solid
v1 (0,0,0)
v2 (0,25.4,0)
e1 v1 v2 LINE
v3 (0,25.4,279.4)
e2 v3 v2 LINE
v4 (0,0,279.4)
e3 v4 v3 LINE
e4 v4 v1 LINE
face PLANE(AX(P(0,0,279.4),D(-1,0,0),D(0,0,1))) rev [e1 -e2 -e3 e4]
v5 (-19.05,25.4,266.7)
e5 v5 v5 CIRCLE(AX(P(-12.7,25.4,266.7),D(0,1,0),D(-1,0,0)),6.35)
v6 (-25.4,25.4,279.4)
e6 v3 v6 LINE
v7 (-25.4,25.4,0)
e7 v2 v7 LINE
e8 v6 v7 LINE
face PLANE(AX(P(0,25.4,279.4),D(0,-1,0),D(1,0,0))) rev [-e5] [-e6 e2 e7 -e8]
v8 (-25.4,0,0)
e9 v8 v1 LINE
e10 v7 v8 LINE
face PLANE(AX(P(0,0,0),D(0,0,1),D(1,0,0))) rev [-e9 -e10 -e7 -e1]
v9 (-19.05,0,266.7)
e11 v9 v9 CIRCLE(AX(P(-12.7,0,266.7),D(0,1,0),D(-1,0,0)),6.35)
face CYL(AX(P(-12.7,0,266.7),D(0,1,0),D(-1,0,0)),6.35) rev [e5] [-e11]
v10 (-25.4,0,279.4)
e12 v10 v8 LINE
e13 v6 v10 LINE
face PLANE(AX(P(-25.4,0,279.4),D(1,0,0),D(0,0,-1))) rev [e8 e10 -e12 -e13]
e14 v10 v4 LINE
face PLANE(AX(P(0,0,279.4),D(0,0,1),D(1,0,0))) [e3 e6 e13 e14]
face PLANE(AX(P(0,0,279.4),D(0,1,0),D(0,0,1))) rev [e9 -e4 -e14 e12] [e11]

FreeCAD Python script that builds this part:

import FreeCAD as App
import Part
import Sketcher
from FreeCAD import Vector
Q = App.Units.Quantity


def add_polygon(sketch, points):
    """Adds a closed chain of lines whose ends are joined by coincident constraints."""
    first, n = sketch.GeometryCount, len(points)
    for a, b in zip(points, points[1:] + points[:1]):
        sketch.addGeometry(Part.LineSegment(App.Vector(*a, 0), App.Vector(*b, 0)), False)
    for i in range(n):
        sketch.addConstraint(Sketcher.Constraint("Coincident", first + i, 2, first + (i + 1) % n, 1))

doc = App.newDocument("Part")
body = doc.addObject("PartDesign::Body", "Body")

sketch1 = body.newObject("Sketcher::SketchObject", "Sketch")
sketch1.AttachmentSupport = (doc.getObject("XY_Plane"), [""])
sketch1.MapMode = "FlatFace"
add_polygon(sketch1, [(-25, 25), (-25, 0), (0, 0), (0, 25)])
sketch1.addConstraint([
    Sketcher.Constraint("Vertical", 0),
    Sketcher.Constraint("Horizontal", 1),
    Sketcher.Constraint("Vertical", 2),
    Sketcher.Constraint("Horizontal", 3),
    Sketcher.Constraint("Coincident", 1, 2, -1, 1),
    Sketcher.Constraint("Equal", 3, 0),
    Sketcher.Constraint("DistanceX", 1, 1, 1, 2, Q("1 in")),
])
pad1 = body.newObject("PartDesign::Pad", "Pad")
pad1.Profile = sketch1
pad1.Length = Q("11 in")

sketch2 = body.newObject("Sketcher::SketchObject", "Sketch001")
sketch2.AttachmentSupport = (doc.getObject("XZ_Plane"), [""])
sketch2.MapMode = "FlatFace"
sketch2.AttachmentOffset = App.Placement(Vector(0, 0, -1 * 25.4), App.Rotation())
sketch2.addGeometry(Part.Circle(Vector(-13, 267, 0), Vector(0, 0, 1), 6), False)
sketch2.addConstraint([
    Sketcher.Constraint("Diameter", 0, Q("0.5 in")),
    Sketcher.Constraint("DistanceX", 0, 3, -1, 1, Q("0.5 in")),
    Sketcher.Constraint("DistanceY", -1, 1, 0, 3, Q("10.5 in")),
])
pocket1 = body.newObject("PartDesign::Pocket", "Pocket")
pocket1.Profile = sketch2
pocket1.Type = "ThroughAll"
pocket1.Reversed = True

doc.recompute()
